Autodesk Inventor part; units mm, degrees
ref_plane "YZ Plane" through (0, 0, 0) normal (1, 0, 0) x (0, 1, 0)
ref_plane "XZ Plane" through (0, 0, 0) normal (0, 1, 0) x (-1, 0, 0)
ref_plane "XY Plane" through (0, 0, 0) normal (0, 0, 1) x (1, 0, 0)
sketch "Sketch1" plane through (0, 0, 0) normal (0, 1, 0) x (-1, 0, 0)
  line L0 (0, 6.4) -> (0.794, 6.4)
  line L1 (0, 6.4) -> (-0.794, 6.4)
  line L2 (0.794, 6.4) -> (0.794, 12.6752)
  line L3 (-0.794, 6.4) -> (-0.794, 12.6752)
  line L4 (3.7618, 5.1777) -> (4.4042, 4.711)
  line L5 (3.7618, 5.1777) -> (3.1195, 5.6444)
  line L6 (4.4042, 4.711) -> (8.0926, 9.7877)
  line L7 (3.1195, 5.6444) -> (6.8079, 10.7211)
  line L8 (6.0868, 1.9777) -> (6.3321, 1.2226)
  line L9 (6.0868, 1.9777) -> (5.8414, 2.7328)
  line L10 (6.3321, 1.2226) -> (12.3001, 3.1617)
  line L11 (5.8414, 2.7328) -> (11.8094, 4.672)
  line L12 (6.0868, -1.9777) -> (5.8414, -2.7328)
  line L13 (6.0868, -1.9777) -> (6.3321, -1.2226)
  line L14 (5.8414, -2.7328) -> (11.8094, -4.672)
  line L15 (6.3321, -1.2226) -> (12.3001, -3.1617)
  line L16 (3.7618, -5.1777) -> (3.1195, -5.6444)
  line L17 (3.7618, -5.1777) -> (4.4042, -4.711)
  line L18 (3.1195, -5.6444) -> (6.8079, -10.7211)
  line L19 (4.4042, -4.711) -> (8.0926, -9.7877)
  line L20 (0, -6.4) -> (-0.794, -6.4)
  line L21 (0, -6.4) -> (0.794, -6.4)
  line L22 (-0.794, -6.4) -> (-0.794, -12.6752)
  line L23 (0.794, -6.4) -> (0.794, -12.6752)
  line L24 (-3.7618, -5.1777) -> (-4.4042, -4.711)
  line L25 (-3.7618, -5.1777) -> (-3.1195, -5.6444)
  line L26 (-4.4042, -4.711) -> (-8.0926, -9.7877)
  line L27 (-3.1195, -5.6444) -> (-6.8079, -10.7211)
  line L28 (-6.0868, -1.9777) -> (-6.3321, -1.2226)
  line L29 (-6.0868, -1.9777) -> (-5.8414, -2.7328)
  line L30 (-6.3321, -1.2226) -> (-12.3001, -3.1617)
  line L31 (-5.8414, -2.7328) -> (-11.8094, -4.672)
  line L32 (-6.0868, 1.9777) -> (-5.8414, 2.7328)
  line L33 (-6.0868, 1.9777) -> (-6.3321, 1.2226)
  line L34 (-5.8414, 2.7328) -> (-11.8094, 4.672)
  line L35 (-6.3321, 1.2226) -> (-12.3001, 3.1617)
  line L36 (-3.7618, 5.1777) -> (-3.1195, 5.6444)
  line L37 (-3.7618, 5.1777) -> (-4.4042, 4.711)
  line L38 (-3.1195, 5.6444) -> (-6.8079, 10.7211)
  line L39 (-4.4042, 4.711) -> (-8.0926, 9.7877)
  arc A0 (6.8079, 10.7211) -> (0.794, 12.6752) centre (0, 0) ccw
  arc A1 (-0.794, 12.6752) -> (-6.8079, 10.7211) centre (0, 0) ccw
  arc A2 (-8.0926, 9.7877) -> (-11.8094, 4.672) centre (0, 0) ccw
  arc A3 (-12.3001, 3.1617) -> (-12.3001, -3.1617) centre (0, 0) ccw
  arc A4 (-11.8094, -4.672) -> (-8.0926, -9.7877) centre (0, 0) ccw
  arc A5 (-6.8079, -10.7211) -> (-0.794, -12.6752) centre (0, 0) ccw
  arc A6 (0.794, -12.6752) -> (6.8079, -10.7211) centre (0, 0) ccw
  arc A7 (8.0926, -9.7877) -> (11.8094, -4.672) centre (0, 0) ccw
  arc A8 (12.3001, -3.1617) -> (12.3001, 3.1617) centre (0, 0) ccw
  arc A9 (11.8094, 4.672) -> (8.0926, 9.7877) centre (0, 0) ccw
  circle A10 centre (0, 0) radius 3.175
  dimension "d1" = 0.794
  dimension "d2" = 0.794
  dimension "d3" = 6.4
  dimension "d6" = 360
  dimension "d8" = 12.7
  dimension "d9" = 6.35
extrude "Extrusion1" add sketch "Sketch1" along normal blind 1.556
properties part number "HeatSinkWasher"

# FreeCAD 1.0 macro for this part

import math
import FreeCAD as App
import Part
import Sketcher
Q = App.Units.Quantity

doc = App.newDocument("Part")
body = doc.addObject("PartDesign::Body", "Body")

# Sketch on XZ plane
sketch1 = body.newObject("Sketcher::SketchObject", "Sketch")
sketch1.AttachmentSupport = (doc.getObject("XZ_Plane"), [""])
sketch1.MapMode = "FlatFace"
sketch1.addGeometry([
    Part.LineSegment(App.Vector(-0.8, 6.4, 0), App.Vector(0.8, 6.4, 0)),  # 0
    Part.LineSegment(App.Vector(0.8, 6.4, 0), App.Vector(0.8, 12.7, 0)),  # 1
    Part.ArcOfCircle(Part.Circle(App.Vector(0, 0, 0), App.Vector(0, 0, 1), 12.7), math.radians(58), math.radians(86)),  # 2
    Part.LineSegment(App.Vector(6.8, 10.7, 0), App.Vector(3.1, 5.6, 0)),  # 3
    Part.LineSegment(App.Vector(3.1, 5.6, 0), App.Vector(3.8, 5.2, 0)),  # 4
    Part.LineSegment(App.Vector(3.8, 5.2, 0), App.Vector(4.4, 4.7, 0)),  # 5
    Part.LineSegment(App.Vector(4.4, 4.7, 0), App.Vector(8.1, 9.8, 0)),  # 6
    Part.ArcOfCircle(Part.Circle(App.Vector(0, 0, 0), App.Vector(0, 0, 1), 12.7), math.radians(22), math.radians(50)),  # 7
    Part.LineSegment(App.Vector(11.8, 4.7, 0), App.Vector(5.8, 2.7, 0)),  # 8
    Part.LineSegment(App.Vector(5.8, 2.7, 0), App.Vector(6.1, 2, 0)),  # 9
    Part.LineSegment(App.Vector(6.1, 2, 0), App.Vector(6.3, 1.2, 0)),  # 10
    Part.LineSegment(App.Vector(6.3, 1.2, 0), App.Vector(12.3, 3.2, 0)),  # 11
    Part.ArcOfCircle(Part.Circle(App.Vector(0, 0, 0), App.Vector(0, 0, 1), 12.7), math.radians(-14), math.radians(14)),  # 12
    Part.LineSegment(App.Vector(12.3, -3.2, 0), App.Vector(6.3, -1.2, 0)),  # 13
    Part.LineSegment(App.Vector(6.3, -1.2, 0), App.Vector(6.1, -2, 0)),  # 14
    Part.LineSegment(App.Vector(6.1, -2, 0), App.Vector(5.8, -2.7, 0)),  # 15
    Part.LineSegment(App.Vector(5.8, -2.7, 0), App.Vector(11.8, -4.7, 0)),  # 16
    Part.ArcOfCircle(Part.Circle(App.Vector(0, 0, 0), App.Vector(0, 0, 1), 12.7), math.radians(-50), math.radians(-22)),  # 17
    Part.LineSegment(App.Vector(8.1, -9.8, 0), App.Vector(4.4, -4.7, 0)),  # 18
    Part.LineSegment(App.Vector(4.4, -4.7, 0), App.Vector(3.8, -5.2, 0)),  # 19
    Part.LineSegment(App.Vector(3.8, -5.2, 0), App.Vector(3.1, -5.6, 0)),  # 20
    Part.LineSegment(App.Vector(3.1, -5.6, 0), App.Vector(6.8, -10.7, 0)),  # 21
    Part.ArcOfCircle(Part.Circle(App.Vector(0, 0, 0), App.Vector(0, 0, 1), 12.7), math.radians(-86), math.radians(-58)),  # 22
    Part.LineSegment(App.Vector(0.8, -12.7, 0), App.Vector(0.8, -6.4, 0)),  # 23
    Part.LineSegment(App.Vector(0.8, -6.4, 0), App.Vector(-0.8, -6.4, 0)),  # 24
    Part.LineSegment(App.Vector(-0.8, -6.4, 0), App.Vector(-0.8, -12.7, 0)),  # 25
    Part.ArcOfCircle(Part.Circle(App.Vector(0, 0, 0), App.Vector(0, 0, 1), 12.7), math.radians(-122), math.radians(-94)),  # 26
    Part.LineSegment(App.Vector(-6.8, -10.7, 0), App.Vector(-3.1, -5.6, 0)),  # 27
    Part.LineSegment(App.Vector(-3.1, -5.6, 0), App.Vector(-3.8, -5.2, 0)),  # 28
    Part.LineSegment(App.Vector(-3.8, -5.2, 0), App.Vector(-4.4, -4.7, 0)),  # 29
    Part.LineSegment(App.Vector(-4.4, -4.7, 0), App.Vector(-8.1, -9.8, 0)),  # 30
    Part.ArcOfCircle(Part.Circle(App.Vector(0, 0, 0), App.Vector(0, 0, 1), 12.7), math.radians(-158), math.radians(-130)),  # 31
    Part.LineSegment(App.Vector(-11.8, -4.7, 0), App.Vector(-5.8, -2.7, 0)),  # 32
    Part.LineSegment(App.Vector(-5.8, -2.7, 0), App.Vector(-6.1, -2, 0)),  # 33
    Part.LineSegment(App.Vector(-6.1, -2, 0), App.Vector(-6.3, -1.2, 0)),  # 34
    Part.LineSegment(App.Vector(-6.3, -1.2, 0), App.Vector(-12.3, -3.2, 0)),  # 35
    Part.ArcOfCircle(Part.Circle(App.Vector(0, 0, 0), App.Vector(0, 0, 1), 12.7), math.radians(166), math.radians(194)),  # 36
    Part.LineSegment(App.Vector(-12.3, 3.2, 0), App.Vector(-6.3, 1.2, 0)),  # 37
    Part.LineSegment(App.Vector(-6.3, 1.2, 0), App.Vector(-6.1, 2, 0)),  # 38
    Part.LineSegment(App.Vector(-6.1, 2, 0), App.Vector(-5.8, 2.7, 0)),  # 39
    Part.LineSegment(App.Vector(-5.8, 2.7, 0), App.Vector(-11.8, 4.7, 0)),  # 40
    Part.ArcOfCircle(Part.Circle(App.Vector(0, 0, 0), App.Vector(0, 0, 1), 12.7), math.radians(130), math.radians(158)),  # 41
    Part.LineSegment(App.Vector(-8.1, 9.8, 0), App.Vector(-4.4, 4.7, 0)),  # 42
    Part.LineSegment(App.Vector(-4.4, 4.7, 0), App.Vector(-3.8, 5.2, 0)),  # 43
    Part.LineSegment(App.Vector(-3.8, 5.2, 0), App.Vector(-3.1, 5.6, 0)),  # 44
    Part.LineSegment(App.Vector(-3.1, 5.6, 0), App.Vector(-6.8, 10.7, 0)),  # 45
    Part.ArcOfCircle(Part.Circle(App.Vector(0, 0, 0), App.Vector(0, 0, 1), 12.7), math.radians(94), math.radians(122)),  # 46
    Part.LineSegment(App.Vector(-0.8, 12.7, 0), App.Vector(-0.8, 6.4, 0)),  # 47
    Part.Circle(App.Vector(0, 0, 0), App.Vector(0, 0, 1), 3.2),  # 48
], False)
sketch1.addConstraint([
    Sketcher.Constraint("Coincident", 0, 2, 1, 1),
    Sketcher.Constraint("Coincident", 1, 2, 2, 2),
    Sketcher.Constraint("Coincident", 2, 1, 3, 1),
    Sketcher.Constraint("Coincident", 3, 2, 4, 1),
    Sketcher.Constraint("Coincident", 4, 2, 5, 1),
    Sketcher.Constraint("Coincident", 5, 2, 6, 1),
    Sketcher.Constraint("Coincident", 6, 2, 7, 2),
    Sketcher.Constraint("Coincident", 7, 1, 8, 1),
    Sketcher.Constraint("Coincident", 8, 2, 9, 1),
    Sketcher.Constraint("Coincident", 9, 2, 10, 1),
    Sketcher.Constraint("Coincident", 10, 2, 11, 1),
    Sketcher.Constraint("Coincident", 11, 2, 12, 2),
    Sketcher.Constraint("Coincident", 12, 1, 13, 1),
    Sketcher.Constraint("Coincident", 13, 2, 14, 1),
    Sketcher.Constraint("Coincident", 14, 2, 15, 1),
    Sketcher.Constraint("Coincident", 15, 2, 16, 1),
    Sketcher.Constraint("Coincident", 16, 2, 17, 2),
    Sketcher.Constraint("Coincident", 17, 1, 18, 1),
    Sketcher.Constraint("Coincident", 18, 2, 19, 1),
    Sketcher.Constraint("Coincident", 19, 2, 20, 1),
    Sketcher.Constraint("Coincident", 20, 2, 21, 1),
    Sketcher.Constraint("Coincident", 21, 2, 22, 2),
    Sketcher.Constraint("Coincident", 22, 1, 23, 1),
    Sketcher.Constraint("Coincident", 23, 2, 24, 1),
    Sketcher.Constraint("Coincident", 24, 2, 25, 1),
    Sketcher.Constraint("Coincident", 25, 2, 26, 2),
    Sketcher.Constraint("Coincident", 26, 1, 27, 1),
    Sketcher.Constraint("Coincident", 27, 2, 28, 1),
    Sketcher.Constraint("Coincident", 28, 2, 29, 1),
    Sketcher.Constraint("Coincident", 29, 2, 30, 1),
    Sketcher.Constraint("Coincident", 30, 2, 31, 2),
    Sketcher.Constraint("Coincident", 31, 1, 32, 1),
    Sketcher.Constraint("Coincident", 32, 2, 33, 1),
    Sketcher.Constraint("Coincident", 33, 2, 34, 1),
    Sketcher.Constraint("Coincident", 34, 2, 35, 1),
    Sketcher.Constraint("Coincident", 35, 2, 36, 2),
    Sketcher.Constraint("Coincident", 36, 1, 37, 1),
    Sketcher.Constraint("Coincident", 37, 2, 38, 1),
    Sketcher.Constraint("Coincident", 38, 2, 39, 1),
    Sketcher.Constraint("Coincident", 39, 2, 40, 1),
    Sketcher.Constraint("Coincident", 40, 2, 41, 2),
    Sketcher.Constraint("Coincident", 41, 1, 42, 1),
    Sketcher.Constraint("Coincident", 42, 2, 43, 1),
    Sketcher.Constraint("Coincident", 43, 2, 44, 1),
    Sketcher.Constraint("Coincident", 44, 2, 45, 1),
    Sketcher.Constraint("Coincident", 45, 2, 46, 2),
    Sketcher.Constraint("Coincident", 46, 1, 47, 1),
    Sketcher.Constraint("Coincident", 47, 2, 0, 1),
    Sketcher.Constraint("Horizontal", 0),
    Sketcher.Constraint("Vertical", 1),
    Sketcher.Constraint("Vertical", 23),
    Sketcher.Constraint("Horizontal", 24),
    Sketcher.Constraint("Vertical", 25),
    Sketcher.Constraint("Vertical", 47),
    Sketcher.Constraint("Coincident", 2, 3, -1, 1),
    Sketcher.Constraint("Coincident", 7, 3, -1, 1),
    Sketcher.Constraint("Coincident", 12, 3, -1, 1),
    Sketcher.Constraint("Coincident", 17, 3, -1, 1),
    Sketcher.Constraint("Coincident", 22, 3, -1, 1),
    Sketcher.Constraint("Coincident", 26, 3, -1, 1),
    Sketcher.Constraint("Coincident", 31, 3, -1, 1),
    Sketcher.Constraint("Coincident", 36, 3, -1, 1),
    Sketcher.Constraint("Coincident", 41, 3, -1, 1),
    Sketcher.Constraint("Coincident", 46, 3, -1, 1),
    Sketcher.Constraint("Coincident", 48, 3, -1, 1),
    Sketcher.Constraint("Equal", 2, 7),
    Sketcher.Constraint("Equal", 7, 12),
    Sketcher.Constraint("Equal", 12, 17),
    Sketcher.Constraint("Equal", 17, 22),
    Sketcher.Constraint("Equal", 22, 26),
    Sketcher.Constraint("Equal", 26, 31),
    Sketcher.Constraint("Equal", 31, 36),
    Sketcher.Constraint("Equal", 36, 41),
    Sketcher.Constraint("Equal", 41, 46),
    Sketcher.Constraint("Symmetric", 0, 2, 24, 2, -1, 1),
    Sketcher.Constraint("Symmetric", 3, 2, 27, 2, -1, 1),
    Sketcher.Constraint("Symmetric", 4, 2, 28, 2, -1, 1),
    Sketcher.Constraint("Symmetric", 5, 2, 29, 2, -1, 1),
    Sketcher.Constraint("Symmetric", 8, 2, 32, 2, -1, 1),
    Sketcher.Constraint("Symmetric", 9, 2, 33, 2, -1, 1),
    Sketcher.Constraint("Symmetric", 10, 2, 34, 2, -1, 1),
    Sketcher.Constraint("Symmetric", 13, 2, 37, 2, -1, 1),
    Sketcher.Constraint("Symmetric", 14, 2, 38, 2, -1, 1),
    Sketcher.Constraint("Symmetric", 15, 2, 39, 2, -1, 1),
    Sketcher.Constraint("Symmetric", 18, 2, 42, 2, -1, 1),
    Sketcher.Constraint("Symmetric", 19, 2, 43, 2, -1, 1),
    Sketcher.Constraint("Symmetric", 20, 2, 44, 2, -1, 1),
    Sketcher.Constraint("Symmetric", 20, 2, 27, 2, -2),
    Sketcher.Constraint("Symmetric", 19, 2, 28, 2, -2),
    Sketcher.Constraint("Symmetric", 18, 2, 29, 2, -2),
    Sketcher.Constraint("Symmetric", 15, 2, 32, 2, -2),
    Sketcher.Constraint("Symmetric", 14, 2, 33, 2, -2),
    Sketcher.Constraint("Symmetric", 13, 2, 34, 2, -2),
    Sketcher.Constraint("Perpendicular", 3, 4),
    Sketcher.Constraint("Parallel", 4, 5),
    Sketcher.Constraint("Perpendicular", 5, 6),
    Sketcher.Constraint("Perpendicular", 8, 9),
    Sketcher.Constraint("Parallel", 9, 10),
    Sketcher.Constraint("Perpendicular", 10, 11),
    Sketcher.Constraint("Perpendicular", 13, 14),
    Sketcher.Constraint("Perpendicular", 15, 16),
    Sketcher.Constraint("Perpendicular", 18, 19),
    Sketcher.Constraint("Perpendicular", 20, 21),
    Sketcher.Constraint("Parallel", 6, 27),
    Sketcher.Constraint("Perpendicular", 29, 30),
    Sketcher.Constraint("Parallel", 11, 32),
    Sketcher.Constraint("Perpendicular", 34, 35),
    Sketcher.Constraint("Parallel", 16, 37),
    Sketcher.Constraint("Perpendicular", 39, 40),
    Sketcher.Constraint("Parallel", 21, 42),
    Sketcher.Constraint("Perpendicular", 44, 45),
    Sketcher.Constraint("Horizontal", 22, 1, 25, 2),
    Sketcher.Constraint("Horizontal", 1, 2, 46, 1),
    Sketcher.Constraint("Equal", 4, 5),
    Sketcher.Constraint("Equal", 3, 6),
    Sketcher.Constraint("Equal", 6, 8),
    Sketcher.Constraint("Equal", 5, 9),
    Sketcher.Constraint("Equal", 9, 10),
    Sketcher.Constraint("Equal", 8, 11),
    Sketcher.Constraint("Radius", 2, Q("0.5 in")),
    Sketcher.Constraint("Diameter", 48, Q("0.25 in")),
    Sketcher.Constraint("Distance", 4, Q("0.794 mm")),
    Sketcher.Constraint("Angle", 3, Q("-125.9997 deg")),
    Sketcher.Constraint("Angle", 8, Q("-161.9993 deg")),
    Sketcher.Constraint("DistanceX", -1, 1, 0, 2, Q("0.794 mm")),
    Sketcher.Constraint("DistanceY", -1, 1, 0, 2, Q("6.4 mm")),
    Sketcher.Constraint("DistanceY", 13, 2, 9, 2, Q("0.126 in")),
])
pad1 = body.newObject("PartDesign::Pad", "Pad")
pad1.Profile = sketch1
pad1.Length = 1.556
pad1.Reversed = True

doc.recompute()
